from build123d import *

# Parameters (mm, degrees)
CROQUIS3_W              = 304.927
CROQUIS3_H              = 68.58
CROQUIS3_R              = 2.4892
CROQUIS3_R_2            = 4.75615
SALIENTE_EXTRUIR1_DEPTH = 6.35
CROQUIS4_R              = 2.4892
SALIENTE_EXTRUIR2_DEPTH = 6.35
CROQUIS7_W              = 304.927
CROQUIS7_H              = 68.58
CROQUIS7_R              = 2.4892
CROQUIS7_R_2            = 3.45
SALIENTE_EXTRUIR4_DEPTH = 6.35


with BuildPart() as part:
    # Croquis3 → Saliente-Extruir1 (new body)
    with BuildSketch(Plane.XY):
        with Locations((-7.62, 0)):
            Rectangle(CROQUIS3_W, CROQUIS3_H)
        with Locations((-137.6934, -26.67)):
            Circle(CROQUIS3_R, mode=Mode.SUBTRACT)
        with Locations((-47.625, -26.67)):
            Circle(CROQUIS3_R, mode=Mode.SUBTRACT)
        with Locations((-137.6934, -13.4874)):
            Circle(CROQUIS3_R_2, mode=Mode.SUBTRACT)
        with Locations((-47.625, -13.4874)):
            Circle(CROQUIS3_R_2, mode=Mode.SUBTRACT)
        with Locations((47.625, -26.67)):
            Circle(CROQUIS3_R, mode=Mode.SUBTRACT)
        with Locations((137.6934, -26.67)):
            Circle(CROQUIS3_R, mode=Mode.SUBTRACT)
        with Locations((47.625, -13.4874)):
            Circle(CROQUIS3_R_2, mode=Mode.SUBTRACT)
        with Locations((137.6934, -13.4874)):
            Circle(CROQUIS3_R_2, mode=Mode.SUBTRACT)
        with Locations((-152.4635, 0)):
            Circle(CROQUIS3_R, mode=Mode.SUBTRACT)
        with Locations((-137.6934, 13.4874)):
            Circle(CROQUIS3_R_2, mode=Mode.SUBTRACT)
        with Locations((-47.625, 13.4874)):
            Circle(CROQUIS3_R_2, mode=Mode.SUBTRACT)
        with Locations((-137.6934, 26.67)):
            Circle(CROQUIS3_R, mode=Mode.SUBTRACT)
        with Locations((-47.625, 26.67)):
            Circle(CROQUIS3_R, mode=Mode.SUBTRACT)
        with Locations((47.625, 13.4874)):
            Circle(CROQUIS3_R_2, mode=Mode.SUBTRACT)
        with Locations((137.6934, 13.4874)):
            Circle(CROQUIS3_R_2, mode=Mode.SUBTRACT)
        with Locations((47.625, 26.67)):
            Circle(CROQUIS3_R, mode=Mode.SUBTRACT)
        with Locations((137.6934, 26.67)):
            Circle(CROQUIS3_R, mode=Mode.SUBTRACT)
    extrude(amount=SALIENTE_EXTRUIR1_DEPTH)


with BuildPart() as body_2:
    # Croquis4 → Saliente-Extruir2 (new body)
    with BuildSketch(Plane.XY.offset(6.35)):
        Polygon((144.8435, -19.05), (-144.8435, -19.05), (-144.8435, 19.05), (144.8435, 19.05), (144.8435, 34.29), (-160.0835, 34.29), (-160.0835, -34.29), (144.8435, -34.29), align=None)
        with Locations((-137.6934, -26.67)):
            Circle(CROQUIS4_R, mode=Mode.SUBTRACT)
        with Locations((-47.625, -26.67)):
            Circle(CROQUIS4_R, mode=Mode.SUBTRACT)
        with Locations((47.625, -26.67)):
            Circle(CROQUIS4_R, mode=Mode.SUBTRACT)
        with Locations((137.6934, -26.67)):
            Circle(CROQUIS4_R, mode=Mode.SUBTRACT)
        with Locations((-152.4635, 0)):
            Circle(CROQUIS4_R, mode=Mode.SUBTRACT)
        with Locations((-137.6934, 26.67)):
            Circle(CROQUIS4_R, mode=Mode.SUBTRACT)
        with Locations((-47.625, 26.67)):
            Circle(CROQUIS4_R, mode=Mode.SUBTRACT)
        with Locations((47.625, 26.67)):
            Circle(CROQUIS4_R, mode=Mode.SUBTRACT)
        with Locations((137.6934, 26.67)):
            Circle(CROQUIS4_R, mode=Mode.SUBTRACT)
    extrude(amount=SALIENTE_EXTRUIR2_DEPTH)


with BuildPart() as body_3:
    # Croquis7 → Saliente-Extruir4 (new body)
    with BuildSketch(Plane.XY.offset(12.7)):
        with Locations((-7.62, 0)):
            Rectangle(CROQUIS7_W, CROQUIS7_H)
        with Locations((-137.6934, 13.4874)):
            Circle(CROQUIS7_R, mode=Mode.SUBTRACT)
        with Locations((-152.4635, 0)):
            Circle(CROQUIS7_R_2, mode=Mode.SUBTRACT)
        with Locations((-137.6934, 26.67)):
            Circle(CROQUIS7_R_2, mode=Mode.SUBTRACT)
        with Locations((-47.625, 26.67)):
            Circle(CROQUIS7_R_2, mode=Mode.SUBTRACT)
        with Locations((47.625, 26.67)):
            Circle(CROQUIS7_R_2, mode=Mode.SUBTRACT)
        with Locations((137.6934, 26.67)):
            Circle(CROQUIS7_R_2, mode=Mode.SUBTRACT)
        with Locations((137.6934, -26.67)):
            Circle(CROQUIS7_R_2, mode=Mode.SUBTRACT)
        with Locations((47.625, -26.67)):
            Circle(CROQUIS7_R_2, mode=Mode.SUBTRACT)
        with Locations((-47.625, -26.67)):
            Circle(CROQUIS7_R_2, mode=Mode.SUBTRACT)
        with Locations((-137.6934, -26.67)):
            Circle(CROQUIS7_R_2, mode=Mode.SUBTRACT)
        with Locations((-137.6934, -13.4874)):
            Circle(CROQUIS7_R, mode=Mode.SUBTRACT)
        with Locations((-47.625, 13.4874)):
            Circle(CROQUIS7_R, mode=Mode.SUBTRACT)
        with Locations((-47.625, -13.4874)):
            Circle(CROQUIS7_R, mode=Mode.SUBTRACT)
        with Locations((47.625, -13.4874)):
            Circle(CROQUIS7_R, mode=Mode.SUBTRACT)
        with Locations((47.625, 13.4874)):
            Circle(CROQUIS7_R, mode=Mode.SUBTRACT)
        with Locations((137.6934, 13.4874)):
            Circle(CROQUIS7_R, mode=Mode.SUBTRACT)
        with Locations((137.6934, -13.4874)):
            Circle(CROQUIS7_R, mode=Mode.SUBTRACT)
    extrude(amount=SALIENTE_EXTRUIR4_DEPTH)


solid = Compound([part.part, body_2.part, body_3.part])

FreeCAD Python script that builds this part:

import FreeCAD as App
import Part
import Sketcher
Q = App.Units.Quantity

doc = App.newDocument("Part")
body = doc.addObject("PartDesign::Body", "Body")

# Sketch on XY plane
sketch1 = body.newObject("Sketcher::SketchObject", "Sketch")
sketch1.AttachmentSupport = (doc.getObject("XY_Plane"), [""])
sketch1.MapMode = "FlatFace"
sketch1.addGeometry([
    Part.LineSegment(App.Vector(-160.0835, 34.29, 0), App.Vector(-160.0835, -34.29, 0)),  # 0
    Part.LineSegment(App.Vector(-160.0835, -34.29, 0), App.Vector(144.8435, -34.29, 0)),  # 1
    Part.LineSegment(App.Vector(144.8435, -34.29, 0), App.Vector(144.8435, 34.29, 0)),  # 2
    Part.LineSegment(App.Vector(144.8435, 34.29, 0), App.Vector(-160.0835, 34.29, 0)),  # 3
    Part.Circle(App.Vector(-137.6934, -26.67, 0), App.Vector(0, 0, 1), 2.4892),  # 4
    Part.Circle(App.Vector(-47.625, -26.67, 0), App.Vector(0, 0, 1), 2.4892),  # 5
    Part.Circle(App.Vector(-137.6934, -13.4874, 0), App.Vector(0, 0, 1), 4.75615),  # 6
    Part.Circle(App.Vector(-152.4635, 0, 0), App.Vector(0, 0, 1), 2.4892),  # 7
    Part.Circle(App.Vector(-47.625, -13.4874, 0), App.Vector(0, 0, 1), 4.75615),  # 8
    Part.Circle(App.Vector(47.625, -26.67, 0), App.Vector(0, 0, 1), 2.4892),  # 9
    Part.Circle(App.Vector(137.6934, -26.67, 0), App.Vector(0, 0, 1), 2.4892),  # 10
    Part.Circle(App.Vector(47.625, -13.4874, 0), App.Vector(0, 0, 1), 4.75615),  # 11
    Part.Circle(App.Vector(137.6934, -13.4874, 0), App.Vector(0, 0, 1), 4.75615),  # 12
    Part.Circle(App.Vector(-137.6934, 13.4874, 0), App.Vector(0, 0, 1), 4.75615),  # 13
    Part.Circle(App.Vector(-47.625, 13.4874, 0), App.Vector(0, 0, 1), 4.75615),  # 14
    Part.Circle(App.Vector(-137.6934, 26.67, 0), App.Vector(0, 0, 1), 2.4892),  # 15
    Part.Circle(App.Vector(-47.625, 26.67, 0), App.Vector(0, 0, 1), 2.4892),  # 16
    Part.Circle(App.Vector(47.625, 13.4874, 0), App.Vector(0, 0, 1), 4.75615),  # 17
    Part.Circle(App.Vector(137.6934, 13.4874, 0), App.Vector(0, 0, 1), 4.75615),  # 18
    Part.Circle(App.Vector(47.625, 26.67, 0), App.Vector(0, 0, 1), 2.4892),  # 19
    Part.Circle(App.Vector(137.6934, 26.67, 0), App.Vector(0, 0, 1), 2.4892),  # 20
], False)
sketch1.addConstraint([
    Sketcher.Constraint("Coincident", 0, 2, 1, 1),
    Sketcher.Constraint("Coincident", 1, 2, 2, 1),
    Sketcher.Constraint("Coincident", 2, 2, 3, 1),
    Sketcher.Constraint("Coincident", 3, 2, 0, 1),
    Sketcher.Constraint("Vertical", 0),
    Sketcher.Constraint("Horizontal", 1),
    Sketcher.Constraint("Vertical", 2),
    Sketcher.Constraint("Horizontal", 3),
    Sketcher.Constraint("Equal", 4, 5),
    Sketcher.Constraint("Equal", 5, 7),
    Sketcher.Constraint("Equal", 6, 8),
    Sketcher.Constraint("Equal", 7, 9),
    Sketcher.Constraint("Equal", 9, 10),
    Sketcher.Constraint("Equal", 8, 11),
    Sketcher.Constraint("Equal", 11, 12),
    Sketcher.Constraint("Equal", 12, 13),
    Sketcher.Constraint("Equal", 13, 14),
    Sketcher.Constraint("Equal", 10, 15),
    Sketcher.Constraint("Equal", 15, 16),
    Sketcher.Constraint("Equal", 14, 17),
    Sketcher.Constraint("Equal", 17, 18),
    Sketcher.Constraint("Equal", 16, 19),
    Sketcher.Constraint("Equal", 19, 20),
    Sketcher.Constraint("Symmetric", 12, 3, 13, 3, -1, 1),
    Sketcher.Constraint("Symmetric", 11, 3, 14, 3, -1, 1),
    Sketcher.Constraint("Symmetric", 10, 3, 15, 3, -1, 1),
    Sketcher.Constraint("Symmetric", 9, 3, 16, 3, -1, 1),
    Sketcher.Constraint("Symmetric", 8, 3, 17, 3, -1, 1),
    Sketcher.Constraint("Symmetric", 6, 3, 18, 3, -1, 1),
    Sketcher.Constraint("Symmetric", 5, 3, 19, 3, -1, 1),
    Sketcher.Constraint("Symmetric", 4, 3, 20, 3, -1, 1),
    Sketcher.Constraint("Symmetric", 5, 3, 9, 3, -2),
    Sketcher.Constraint("Symmetric", 4, 3, 10, 3, -2),
    Sketcher.Constraint("Symmetric", 8, 3, 11, 3, -2),
    Sketcher.Constraint("Symmetric", 6, 3, 12, 3, -2),
    Sketcher.Constraint("PointOnObject", 7, 3, -1),
    Sketcher.Constraint("Horizontal", 4, 3, 5, 3),
    Sketcher.Constraint("Horizontal", 6, 3, 8, 3),
    Sketcher.Constraint("Vertical", 4, 3, 6, 3),
    Sketcher.Constraint("Vertical", 5, 3, 8, 3),
    Sketcher.Constraint("Diameter", 4, Q("0.196 in")),
    Sketcher.Constraint("DistanceY", 0, 2, 0, 1, Q("2.7 in")),
    Sketcher.Constraint("Diameter", 6, Q("0.3745 in")),
    Sketcher.Constraint("DistanceY", 4, 3, 15, 3, Q("2.1 in")),
    Sketcher.Constraint("DistanceY", 0, 2, 4, 3, Q("0.3 in")),
    Sketcher.Constraint("DistanceX", 0, 2, 7, 3, Q("0.3 in")),
    Sketcher.Constraint("DistanceX", 1, 1, 1, 2, Q("12.005 in")),
    Sketcher.Constraint("DistanceX", 5, 3, 9, 3, Q("3.75 in")),
    Sketcher.Constraint("DistanceX", 4, 3, -1, 1, Q("5.421 in")),
    Sketcher.Constraint("DistanceY", 6, 3, -1, 1, Q("0.531 in")),
    Sketcher.Constraint("DistanceX", 7, 3, -1, 1, Q("6.0025 in")),
])
pad1 = body.newObject("PartDesign::Pad", "Pad")
pad1.Profile = sketch1
pad1.Length = Q("0.25 in")
body2 = doc.addObject("PartDesign::Body", "Body001")

# Sketch on XY plane
sketch2 = body2.newObject("Sketcher::SketchObject", "Sketch001")
sketch2.AttachmentSupport = (doc.getObject("XY_Plane001"), [""])
sketch2.MapMode = "FlatFace"
sketch2.AttachmentOffset = App.Placement(App.Vector(0, 0, 0.25 * 25.4), App.Rotation())
sketch2.addGeometry([
    Part.LineSegment(App.Vector(144.8435, -19.05, 0), App.Vector(-144.8435, -19.05, 0)),  # 0
    Part.LineSegment(App.Vector(-144.8435, -19.05, 0), App.Vector(-144.8435, 19.05, 0)),  # 1
    Part.LineSegment(App.Vector(-144.8435, 19.05, 0), App.Vector(144.8435, 19.05, 0)),  # 2
    Part.LineSegment(App.Vector(144.8435, 19.05, 0), App.Vector(144.8435, 34.29, 0)),  # 3
    Part.LineSegment(App.Vector(144.8435, 34.29, 0), App.Vector(-160.0835, 34.29, 0)),  # 4
    Part.LineSegment(App.Vector(-160.0835, 34.29, 0), App.Vector(-160.0835, -34.29, 0)),  # 5
    Part.LineSegment(App.Vector(-160.0835, -34.29, 0), App.Vector(144.8435, -34.29, 0)),  # 6
    Part.LineSegment(App.Vector(144.8435, -34.29, 0), App.Vector(144.8435, -19.05, 0)),  # 7
    Part.Circle(App.Vector(-137.6934, -26.67, 0), App.Vector(0, 0, 1), 2.4892),  # 8
    Part.Circle(App.Vector(-47.625, -26.67, 0), App.Vector(0, 0, 1), 2.4892),  # 9
    Part.Circle(App.Vector(-152.4635, 0, 0), App.Vector(0, 0, 1), 2.4892),  # 10
    Part.Circle(App.Vector(47.625, -26.67, 0), App.Vector(0, 0, 1), 2.4892),  # 11
    Part.Circle(App.Vector(137.6934, -26.67, 0), App.Vector(0, 0, 1), 2.4892),  # 12
    Part.Circle(App.Vector(-137.6934, 26.67, 0), App.Vector(0, 0, 1), 2.4892),  # 13
    Part.Circle(App.Vector(-47.625, 26.67, 0), App.Vector(0, 0, 1), 2.4892),  # 14
    Part.Circle(App.Vector(47.625, 26.67, 0), App.Vector(0, 0, 1), 2.4892),  # 15
    Part.Circle(App.Vector(137.6934, 26.67, 0), App.Vector(0, 0, 1), 2.4892),  # 16
], False)
sketch2.addConstraint([
    Sketcher.Constraint("Coincident", 0, 2, 1, 1),
    Sketcher.Constraint("Coincident", 1, 2, 2, 1),
    Sketcher.Constraint("Coincident", 2, 2, 3, 1),
    Sketcher.Constraint("Coincident", 3, 2, 4, 1),
    Sketcher.Constraint("Coincident", 4, 2, 5, 1),
    Sketcher.Constraint("Coincident", 5, 2, 6, 1),
    Sketcher.Constraint("Coincident", 6, 2, 7, 1),
    Sketcher.Constraint("Coincident", 7, 2, 0, 1),
    Sketcher.Constraint("Horizontal", 0),
    Sketcher.Constraint("Vertical", 1),
    Sketcher.Constraint("Horizontal", 2),
    Sketcher.Constraint("Vertical", 3),
    Sketcher.Constraint("Horizontal", 4),
    Sketcher.Constraint("Vertical", 5),
    Sketcher.Constraint("Horizontal", 6),
    Sketcher.Constraint("Vertical", 7),
    Sketcher.Constraint("Equal", 8, 9),
    Sketcher.Constraint("Equal", 9, 10),
    Sketcher.Constraint("Equal", 10, 11),
    Sketcher.Constraint("Equal", 11, 12),
    Sketcher.Constraint("Equal", 12, 13),
    Sketcher.Constraint("Equal", 13, 14),
    Sketcher.Constraint("Equal", 14, 15),
    Sketcher.Constraint("Equal", 15, 16),
    Sketcher.Constraint("Symmetric", 12, 3, 13, 3, -1, 1),
    Sketcher.Constraint("Symmetric", 11, 3, 14, 3, -1, 1),
    Sketcher.Constraint("Symmetric", 9, 3, 15, 3, -1, 1),
    Sketcher.Constraint("Symmetric", 8, 3, 16, 3, -1, 1),
    Sketcher.Constraint("Symmetric", 0, 2, 2, 2, -1, 1),
    Sketcher.Constraint("Symmetric", 9, 3, 11, 3, -2),
    Sketcher.Constraint("Symmetric", 8, 3, 12, 3, -2),
    Sketcher.Constraint("Symmetric", 3, 2, 6, 2, -1),
    Sketcher.Constraint("PointOnObject", 10, 3, -1),
    Sketcher.Constraint("Horizontal", 8, 3, 9, 3),
    Sketcher.Constraint("Diameter", 8, Q("0.196 in")),
    Sketcher.Constraint("DistanceY", 1, 1, 1, 2, Q("1.5 in")),
    Sketcher.Constraint("DistanceY", 3, 1, 3, 2, Q("0.6 in")),
    Sketcher.Constraint("DistanceY", 8, 3, 13, 3, Q("2.1 in")),
    Sketcher.Constraint("DistanceX", 10, 3, 0, 2, Q("0.3 in")),
    Sketcher.Constraint("DistanceX", 4, 2, 1, 2, Q("0.6 in")),
    Sketcher.Constraint("DistanceX", 0, 2, 0, 1, Q("11.405 in")),
    Sketcher.Constraint("DistanceX", 9, 3, 11, 3, Q("3.75 in")),
    Sketcher.Constraint("DistanceX", 8, 3, -1, 1, Q("5.421 in")),
])
pad2 = body2.newObject("PartDesign::Pad", "Pad001")
pad2.Profile = sketch2
pad2.Length = Q("0.25 in")
body3 = doc.addObject("PartDesign::Body", "Body002")

# Sketch on XY plane
sketch3 = body3.newObject("Sketcher::SketchObject", "Sketch002")
sketch3.AttachmentSupport = (doc.getObject("XY_Plane002"), [""])
sketch3.MapMode = "FlatFace"
sketch3.AttachmentOffset = App.Placement(App.Vector(0, 0, 0.5 * 25.4), App.Rotation())
sketch3.addGeometry([
    Part.LineSegment(App.Vector(-160.0835, 34.29, 0), App.Vector(-160.0835, -34.29, 0)),  # 0
    Part.LineSegment(App.Vector(-160.0835, -34.29, 0), App.Vector(144.8435, -34.29, 0)),  # 1
    Part.LineSegment(App.Vector(144.8435, -34.29, 0), App.Vector(144.8435, 34.29, 0)),  # 2
    Part.LineSegment(App.Vector(144.8435, 34.29, 0), App.Vector(-160.0835, 34.29, 0)),  # 3
    Part.Circle(App.Vector(-137.6934, -26.67, 0), App.Vector(0, 0, 1), 3.45),  # 4
    Part.Circle(App.Vector(-47.625, -26.67, 0), App.Vector(0, 0, 1), 3.45),  # 5
    Part.Circle(App.Vector(-137.6934, -13.4874, 0), App.Vector(0, 0, 1), 2.4892),  # 6
    Part.Circle(App.Vector(-47.625, -13.4874, 0), App.Vector(0, 0, 1), 2.4892),  # 7
    Part.Circle(App.Vector(47.625, -26.67, 0), App.Vector(0, 0, 1), 3.45),  # 8
    Part.Circle(App.Vector(137.6934, -26.67, 0), App.Vector(0, 0, 1), 3.45),  # 9
    Part.Circle(App.Vector(47.625, -13.4874, 0), App.Vector(0, 0, 1), 2.4892),  # 10
    Part.Circle(App.Vector(137.6934, -13.4874, 0), App.Vector(0, 0, 1), 2.4892),  # 11
    Part.Circle(App.Vector(-152.4635, 0, 0), App.Vector(0, 0, 1), 3.45),  # 12
    Part.Circle(App.Vector(-137.6934, 13.4874, 0), App.Vector(0, 0, 1), 2.4892),  # 13
    Part.Circle(App.Vector(-47.625, 13.4874, 0), App.Vector(0, 0, 1), 2.4892),  # 14
    Part.Circle(App.Vector(-137.6934, 26.67, 0), App.Vector(0, 0, 1), 3.45),  # 15
    Part.Circle(App.Vector(-47.625, 26.67, 0), App.Vector(0, 0, 1), 3.45),  # 16
    Part.Circle(App.Vector(47.625, 13.4874, 0), App.Vector(0, 0, 1), 2.4892),  # 17
    Part.Circle(App.Vector(137.6934, 13.4874, 0), App.Vector(0, 0, 1), 2.4892),  # 18
    Part.Circle(App.Vector(47.625, 26.67, 0), App.Vector(0, 0, 1), 3.45),  # 19
    Part.Circle(App.Vector(137.6934, 26.67, 0), App.Vector(0, 0, 1), 3.45),  # 20
], False)
sketch3.addConstraint([
    Sketcher.Constraint("Coincident", 0, 2, 1, 1),
    Sketcher.Constraint("Coincident", 1, 2, 2, 1),
    Sketcher.Constraint("Coincident", 2, 2, 3, 1),
    Sketcher.Constraint("Coincident", 3, 2, 0, 1),
    Sketcher.Constraint("Vertical", 0),
    Sketcher.Constraint("Horizontal", 1),
    Sketcher.Constraint("Vertical", 2),
    Sketcher.Constraint("Horizontal", 3),
    Sketcher.Constraint("Equal", 4, 5),
    Sketcher.Constraint("Equal", 6, 7),
    Sketcher.Constraint("Equal", 5, 8),
    Sketcher.Constraint("Equal", 8, 9),
    Sketcher.Constraint("Equal", 7, 10),
    Sketcher.Constraint("Equal", 10, 11),
    Sketcher.Constraint("Equal", 9, 12),
    Sketcher.Constraint("Equal", 11, 13),
    Sketcher.Constraint("Equal", 13, 14),
    Sketcher.Constraint("Equal", 12, 15),
    Sketcher.Constraint("Equal", 15, 16),
    Sketcher.Constraint("Equal", 14, 17),
    Sketcher.Constraint("Equal", 17, 18),
    Sketcher.Constraint("Equal", 16, 19),
    Sketcher.Constraint("Equal", 19, 20),
    Sketcher.Constraint("Symmetric", 11, 3, 13, 3, -1, 1),
    Sketcher.Constraint("Symmetric", 10, 3, 14, 3, -1, 1),
    Sketcher.Constraint("Symmetric", 9, 3, 15, 3, -1, 1),
    Sketcher.Constraint("Symmetric", 8, 3, 16, 3, -1, 1),
    Sketcher.Constraint("Symmetric", 7, 3, 17, 3, -1, 1),
    Sketcher.Constraint("Symmetric", 6, 3, 18, 3, -1, 1),
    Sketcher.Constraint("Symmetric", 5, 3, 19, 3, -1, 1),
    Sketcher.Constraint("Symmetric", 4, 3, 20, 3, -1, 1),
    Sketcher.Constraint("Symmetric", 5, 3, 8, 3, -2),
    Sketcher.Constraint("Symmetric", 4, 3, 9, 3, -2),
    Sketcher.Constraint("Symmetric", 7, 3, 10, 3, -2),
    Sketcher.Constraint("Symmetric", 6, 3, 11, 3, -2),
    Sketcher.Constraint("PointOnObject", 12, 3, -1),
    Sketcher.Constraint("Horizontal", 4, 3, 5, 3),
    Sketcher.Constraint("Horizontal", 6, 3, 7, 3),
    Sketcher.Constraint("Vertical", 4, 3, 6, 3),
    Sketcher.Constraint("Vertical", 5, 3, 7, 3),
    Sketcher.Constraint("Diameter", 6, Q("0.196 in")),
    Sketcher.Constraint("DistanceY", 0, 2, 0, 1, Q("2.7 in")),
    Sketcher.Constraint("DistanceY", 4, 3, 15, 3, Q("2.1 in")),
    Sketcher.Constraint("DistanceY", 0, 2, 4, 3, Q("0.3 in")),
    Sketcher.Constraint("DistanceX", 0, 2, 12, 3, Q("0.3 in")),
    Sketcher.Constraint("Diameter", 4, 6.9),
    Sketcher.Constraint("DistanceX", 1, 1, 1, 2, Q("12.005 in")),
    Sketcher.Constraint("DistanceX", 5, 3, 8, 3, Q("3.75 in")),
    Sketcher.Constraint("DistanceX", 4, 3, -1, 1, Q("5.421 in")),
    Sketcher.Constraint("DistanceY", 6, 3, -1, 1, Q("0.531 in")),
    Sketcher.Constraint("DistanceX", 12, 3, -1, 1, Q("6.0025 in")),
])
pad3 = body3.newObject("PartDesign::Pad", "Pad002")
pad3.Profile = sketch3
pad3.Length = Q("0.25 in")

doc.recompute()
